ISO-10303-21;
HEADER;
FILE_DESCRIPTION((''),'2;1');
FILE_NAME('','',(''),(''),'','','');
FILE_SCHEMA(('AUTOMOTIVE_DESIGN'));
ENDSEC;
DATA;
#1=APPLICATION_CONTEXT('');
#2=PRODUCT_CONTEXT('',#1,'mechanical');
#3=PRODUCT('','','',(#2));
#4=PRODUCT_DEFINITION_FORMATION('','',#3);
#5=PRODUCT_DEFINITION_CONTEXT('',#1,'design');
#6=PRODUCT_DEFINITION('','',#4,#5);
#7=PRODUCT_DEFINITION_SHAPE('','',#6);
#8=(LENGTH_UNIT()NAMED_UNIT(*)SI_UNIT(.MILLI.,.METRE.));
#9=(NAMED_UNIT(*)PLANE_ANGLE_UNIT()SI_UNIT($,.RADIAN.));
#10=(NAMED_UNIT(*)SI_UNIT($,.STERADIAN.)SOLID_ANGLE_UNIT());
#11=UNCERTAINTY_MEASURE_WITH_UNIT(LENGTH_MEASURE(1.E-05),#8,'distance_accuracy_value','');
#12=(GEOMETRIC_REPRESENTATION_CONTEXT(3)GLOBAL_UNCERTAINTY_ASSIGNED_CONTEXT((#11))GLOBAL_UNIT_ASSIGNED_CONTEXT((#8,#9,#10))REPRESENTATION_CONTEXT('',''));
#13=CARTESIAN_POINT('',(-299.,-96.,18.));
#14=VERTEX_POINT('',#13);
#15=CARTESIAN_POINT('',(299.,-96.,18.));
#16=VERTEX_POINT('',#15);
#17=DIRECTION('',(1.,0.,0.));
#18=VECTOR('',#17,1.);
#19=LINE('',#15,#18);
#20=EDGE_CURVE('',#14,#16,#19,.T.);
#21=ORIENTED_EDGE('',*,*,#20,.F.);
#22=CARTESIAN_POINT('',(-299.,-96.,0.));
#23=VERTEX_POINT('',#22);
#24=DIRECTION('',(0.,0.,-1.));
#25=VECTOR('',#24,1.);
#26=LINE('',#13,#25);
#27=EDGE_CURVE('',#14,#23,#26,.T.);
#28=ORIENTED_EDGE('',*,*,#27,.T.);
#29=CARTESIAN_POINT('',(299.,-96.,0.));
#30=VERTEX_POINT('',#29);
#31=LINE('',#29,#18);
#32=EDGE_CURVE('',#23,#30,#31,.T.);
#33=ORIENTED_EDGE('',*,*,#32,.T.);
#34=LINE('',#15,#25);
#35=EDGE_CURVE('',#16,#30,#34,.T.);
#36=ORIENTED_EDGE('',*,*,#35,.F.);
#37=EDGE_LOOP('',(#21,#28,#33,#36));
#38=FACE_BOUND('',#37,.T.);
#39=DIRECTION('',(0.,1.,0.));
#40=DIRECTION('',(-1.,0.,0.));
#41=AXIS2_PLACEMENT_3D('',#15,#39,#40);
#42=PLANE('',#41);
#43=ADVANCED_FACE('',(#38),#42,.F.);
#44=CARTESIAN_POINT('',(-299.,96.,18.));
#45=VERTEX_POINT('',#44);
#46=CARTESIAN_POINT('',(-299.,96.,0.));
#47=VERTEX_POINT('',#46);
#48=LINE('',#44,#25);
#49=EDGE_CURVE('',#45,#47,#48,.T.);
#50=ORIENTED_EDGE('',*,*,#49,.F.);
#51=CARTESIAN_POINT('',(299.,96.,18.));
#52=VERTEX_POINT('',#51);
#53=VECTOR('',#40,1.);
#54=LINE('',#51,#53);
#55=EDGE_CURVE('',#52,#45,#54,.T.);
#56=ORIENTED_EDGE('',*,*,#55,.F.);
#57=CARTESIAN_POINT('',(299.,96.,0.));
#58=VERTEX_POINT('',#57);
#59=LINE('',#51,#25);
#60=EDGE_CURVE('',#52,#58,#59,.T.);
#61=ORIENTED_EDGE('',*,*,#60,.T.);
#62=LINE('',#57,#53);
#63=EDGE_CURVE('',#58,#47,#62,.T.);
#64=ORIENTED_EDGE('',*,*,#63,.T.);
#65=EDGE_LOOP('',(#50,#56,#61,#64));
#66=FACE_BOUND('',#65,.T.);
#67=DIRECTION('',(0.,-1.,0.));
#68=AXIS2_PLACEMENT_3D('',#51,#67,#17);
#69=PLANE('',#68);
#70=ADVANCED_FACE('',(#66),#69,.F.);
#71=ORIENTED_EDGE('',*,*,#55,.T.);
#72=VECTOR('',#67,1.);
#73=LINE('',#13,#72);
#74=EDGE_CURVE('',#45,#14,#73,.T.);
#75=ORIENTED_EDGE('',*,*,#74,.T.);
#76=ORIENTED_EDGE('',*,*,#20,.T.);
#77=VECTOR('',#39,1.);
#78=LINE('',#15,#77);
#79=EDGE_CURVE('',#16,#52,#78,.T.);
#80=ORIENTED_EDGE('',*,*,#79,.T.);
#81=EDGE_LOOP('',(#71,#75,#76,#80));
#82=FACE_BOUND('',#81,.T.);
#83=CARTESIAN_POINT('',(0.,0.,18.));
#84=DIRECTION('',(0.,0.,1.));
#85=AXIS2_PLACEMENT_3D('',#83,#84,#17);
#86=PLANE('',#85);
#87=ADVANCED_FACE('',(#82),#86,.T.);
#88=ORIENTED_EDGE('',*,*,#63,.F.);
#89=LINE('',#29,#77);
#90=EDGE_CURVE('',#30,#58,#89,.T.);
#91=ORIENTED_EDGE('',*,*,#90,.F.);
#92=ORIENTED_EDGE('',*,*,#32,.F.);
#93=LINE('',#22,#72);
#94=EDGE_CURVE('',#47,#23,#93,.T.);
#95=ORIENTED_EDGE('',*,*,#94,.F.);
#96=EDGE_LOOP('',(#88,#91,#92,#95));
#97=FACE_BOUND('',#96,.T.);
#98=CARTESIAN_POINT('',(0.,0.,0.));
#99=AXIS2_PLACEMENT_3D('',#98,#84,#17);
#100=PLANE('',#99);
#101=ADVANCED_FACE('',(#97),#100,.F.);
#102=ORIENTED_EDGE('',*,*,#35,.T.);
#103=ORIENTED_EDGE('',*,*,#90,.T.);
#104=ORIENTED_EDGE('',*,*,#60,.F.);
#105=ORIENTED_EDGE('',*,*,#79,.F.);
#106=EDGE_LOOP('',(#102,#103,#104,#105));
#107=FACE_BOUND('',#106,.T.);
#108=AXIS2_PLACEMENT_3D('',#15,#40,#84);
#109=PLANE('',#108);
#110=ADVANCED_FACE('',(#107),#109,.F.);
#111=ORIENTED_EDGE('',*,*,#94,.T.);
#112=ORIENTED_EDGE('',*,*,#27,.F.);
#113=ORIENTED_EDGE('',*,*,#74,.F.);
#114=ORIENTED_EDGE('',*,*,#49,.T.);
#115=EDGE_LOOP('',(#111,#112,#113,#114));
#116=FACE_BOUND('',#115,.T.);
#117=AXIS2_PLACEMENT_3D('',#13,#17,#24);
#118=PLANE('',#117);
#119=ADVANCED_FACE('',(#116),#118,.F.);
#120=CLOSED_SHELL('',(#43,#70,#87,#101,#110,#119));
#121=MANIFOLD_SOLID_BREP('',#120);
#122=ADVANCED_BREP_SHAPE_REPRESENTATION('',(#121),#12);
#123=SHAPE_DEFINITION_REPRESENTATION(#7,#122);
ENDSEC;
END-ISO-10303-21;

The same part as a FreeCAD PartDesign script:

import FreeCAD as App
import Part
import Sketcher

V = App.Vector
Q = App.Units.Quantity


def add_polygon(sketch, points):
    """Adds a closed chain of lines whose ends are joined by coincident constraints."""
    first, n = sketch.GeometryCount, len(points)
    for a, b in zip(points, points[1:] + points[:1]):
        sketch.addGeometry(Part.LineSegment(App.Vector(*a, 0), App.Vector(*b, 0)), False)
    for i in range(n):
        sketch.addConstraint(Sketcher.Constraint("Coincident", first + i, 2, first + (i + 1) % n, 1))

doc = App.newDocument("Part")
body = doc.addObject("PartDesign::Body", "Body")

# Sketch on XY plane
sketch1 = body.newObject("Sketcher::SketchObject", "Sketch")
sketch1.AttachmentSupport = (doc.getObject("XY_Plane"), [""])
sketch1.MapMode = "FlatFace"
add_polygon(sketch1, [(-299, 96), (-299, -96), (299, -96), (299, 96)])  # lines 0-3
sketch1.addConstraint(Sketcher.Constraint("Vertical", 0))
sketch1.addConstraint(Sketcher.Constraint("Horizontal", 1))
sketch1.addConstraint(Sketcher.Constraint("Vertical", 2))
sketch1.addConstraint(Sketcher.Constraint("Horizontal", 3))
sketch1.addConstraint(Sketcher.Constraint("Symmetric", 0, 2, 2, 2, -1, 1))
sketch1.addConstraint(Sketcher.Constraint("DistanceX", 1, 1, 1, 2, Q("598 mm")))
sketch1.addConstraint(Sketcher.Constraint("DistanceY", 0, 2, 0, 1, Q("192 mm")))
pad1 = body.newObject("PartDesign::Pad", "Pad")
pad1.Profile = sketch1
pad1.Length = 18

doc.recompute()
